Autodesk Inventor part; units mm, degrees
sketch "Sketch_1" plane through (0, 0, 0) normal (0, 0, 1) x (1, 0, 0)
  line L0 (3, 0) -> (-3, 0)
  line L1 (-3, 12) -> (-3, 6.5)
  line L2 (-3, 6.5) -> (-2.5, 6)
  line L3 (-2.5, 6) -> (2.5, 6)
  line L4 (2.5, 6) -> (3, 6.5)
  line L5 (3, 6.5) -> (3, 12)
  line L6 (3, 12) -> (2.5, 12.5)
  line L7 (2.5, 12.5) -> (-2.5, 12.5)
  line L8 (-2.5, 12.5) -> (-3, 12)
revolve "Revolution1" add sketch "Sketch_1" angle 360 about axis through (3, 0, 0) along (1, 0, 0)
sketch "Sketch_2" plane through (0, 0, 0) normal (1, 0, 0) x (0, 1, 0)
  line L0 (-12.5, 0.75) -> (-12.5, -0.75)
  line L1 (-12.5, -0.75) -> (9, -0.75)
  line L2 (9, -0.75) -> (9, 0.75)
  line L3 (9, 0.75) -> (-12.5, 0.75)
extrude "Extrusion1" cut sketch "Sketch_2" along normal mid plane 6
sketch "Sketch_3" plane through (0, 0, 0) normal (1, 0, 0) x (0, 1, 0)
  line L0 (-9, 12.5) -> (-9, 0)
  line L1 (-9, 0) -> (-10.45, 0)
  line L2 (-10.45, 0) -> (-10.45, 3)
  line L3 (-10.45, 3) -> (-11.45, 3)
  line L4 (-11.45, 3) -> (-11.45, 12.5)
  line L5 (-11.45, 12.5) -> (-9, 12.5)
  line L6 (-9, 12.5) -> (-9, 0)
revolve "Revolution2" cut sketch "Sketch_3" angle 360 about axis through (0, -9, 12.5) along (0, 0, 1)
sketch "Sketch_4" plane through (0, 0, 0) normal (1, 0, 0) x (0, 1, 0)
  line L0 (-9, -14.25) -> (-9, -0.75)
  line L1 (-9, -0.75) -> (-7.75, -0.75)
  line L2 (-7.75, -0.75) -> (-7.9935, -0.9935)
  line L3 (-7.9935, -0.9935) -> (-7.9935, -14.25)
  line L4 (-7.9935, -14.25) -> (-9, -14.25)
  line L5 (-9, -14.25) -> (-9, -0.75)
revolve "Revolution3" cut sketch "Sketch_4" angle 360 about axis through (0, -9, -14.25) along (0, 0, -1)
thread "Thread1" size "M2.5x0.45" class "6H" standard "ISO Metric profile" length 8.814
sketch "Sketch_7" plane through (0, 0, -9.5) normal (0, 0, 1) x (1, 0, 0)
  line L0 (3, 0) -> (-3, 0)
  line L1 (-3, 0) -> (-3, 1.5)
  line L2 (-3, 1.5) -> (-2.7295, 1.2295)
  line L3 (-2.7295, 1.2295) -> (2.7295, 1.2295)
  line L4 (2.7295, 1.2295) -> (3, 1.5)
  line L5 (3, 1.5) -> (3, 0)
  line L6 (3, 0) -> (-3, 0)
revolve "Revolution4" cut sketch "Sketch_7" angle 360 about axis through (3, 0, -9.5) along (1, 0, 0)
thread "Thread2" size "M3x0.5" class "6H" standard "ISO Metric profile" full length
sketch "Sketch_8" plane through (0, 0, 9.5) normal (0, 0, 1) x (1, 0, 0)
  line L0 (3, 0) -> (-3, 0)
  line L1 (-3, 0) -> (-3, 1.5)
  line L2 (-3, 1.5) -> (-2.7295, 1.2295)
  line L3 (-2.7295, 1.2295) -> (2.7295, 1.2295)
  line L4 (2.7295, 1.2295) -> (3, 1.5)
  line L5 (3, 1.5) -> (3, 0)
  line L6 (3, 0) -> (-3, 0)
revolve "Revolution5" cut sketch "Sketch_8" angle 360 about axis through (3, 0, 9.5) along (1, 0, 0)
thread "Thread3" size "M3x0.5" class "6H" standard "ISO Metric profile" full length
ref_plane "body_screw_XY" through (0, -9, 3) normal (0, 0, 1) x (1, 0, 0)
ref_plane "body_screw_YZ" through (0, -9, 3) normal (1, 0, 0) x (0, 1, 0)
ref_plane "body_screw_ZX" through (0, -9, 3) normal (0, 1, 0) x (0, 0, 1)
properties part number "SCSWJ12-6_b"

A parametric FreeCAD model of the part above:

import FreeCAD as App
import Part
import Sketcher

V = App.Vector
Q = App.Units.Quantity

doc = App.newDocument("Part")
body = doc.addObject("PartDesign::Body", "Body")

sketch1 = body.newObject("Sketcher::SketchObject", "Sketch")
sketch1.AttachmentSupport = (doc.getObject("XY_Plane"), [""])
sketch1.MapMode = "FlatFace"
sketch1.addGeometry(Part.LineSegment(V(-2.5, 12.5, 0), V(-3, 12, 0)), False)
sketch1.addGeometry(Part.LineSegment(V(-3, 12, 0), V(-3, 6.5, 0)), False)
sketch1.addGeometry(Part.LineSegment(V(-3, 6.5, 0), V(-2.5, 6, 0)), False)
sketch1.addGeometry(Part.LineSegment(V(-2.5, 6, 0), V(2.5, 6, 0)), False)
sketch1.addGeometry(Part.LineSegment(V(2.5, 6, 0), V(3, 6.5, 0)), False)
sketch1.addGeometry(Part.LineSegment(V(3, 6.5, 0), V(3, 12, 0)), False)
sketch1.addGeometry(Part.LineSegment(V(3, 12, 0), V(2.5, 12.5, 0)), False)
sketch1.addGeometry(Part.LineSegment(V(2.5, 12.5, 0), V(-2.5, 12.5, 0)), False)
sketch1.addConstraint(Sketcher.Constraint("Coincident", 0, 2, 1, 1))
sketch1.addConstraint(Sketcher.Constraint("Coincident", 1, 2, 2, 1))
sketch1.addConstraint(Sketcher.Constraint("Coincident", 2, 2, 3, 1))
sketch1.addConstraint(Sketcher.Constraint("Coincident", 3, 2, 4, 1))
sketch1.addConstraint(Sketcher.Constraint("Coincident", 4, 2, 5, 1))
sketch1.addConstraint(Sketcher.Constraint("Coincident", 5, 2, 6, 1))
sketch1.addConstraint(Sketcher.Constraint("Coincident", 6, 2, 7, 1))
sketch1.addConstraint(Sketcher.Constraint("Coincident", 7, 2, 0, 1))
sketch1.addConstraint(Sketcher.Constraint("Vertical", 1))
sketch1.addConstraint(Sketcher.Constraint("Horizontal", 3))
sketch1.addConstraint(Sketcher.Constraint("Vertical", 5))
sketch1.addConstraint(Sketcher.Constraint("Horizontal", 7))
sketch1.addConstraint(Sketcher.Constraint("Symmetric", 1, 2, 4, 2, -2))
sketch1.addConstraint(Sketcher.Constraint("Perpendicular", 0, 2))
sketch1.addConstraint(Sketcher.Constraint("Perpendicular", 2, 4))
sketch1.addConstraint(Sketcher.Constraint("Perpendicular", 4, 6))
sketch1.addConstraint(Sketcher.Constraint("Horizontal", 0, 2, 5, 2))
sketch1.addConstraint(Sketcher.Constraint("Vertical", 3, 2, 6, 2))
sketch1.addConstraint(Sketcher.Constraint("Vertical", 2, 2, 7, 2))
sketch1.addConstraint(Sketcher.Constraint("DistanceX", 3, 1, 3, 2, Q("5 mm")))
sketch1.addConstraint(Sketcher.Constraint("DistanceY", 1, 2, 1, 1, Q("5.5 mm")))
sketch1.addConstraint(Sketcher.Constraint("DistanceX", 0, 2, -1, 1, Q("3 mm")))
sketch1.addConstraint(Sketcher.Constraint("DistanceY", -1, 1, 0, 2, Q("12 mm")))
revolution = body.newObject("PartDesign::Revolution", "Revolution")
revolution.Profile = sketch1
revolution.ReferenceAxis = (sketch1, ["H_Axis"])
revolution.Angle = 360

sketch2 = body.newObject("Sketcher::SketchObject", "Sketch001")
sketch2.AttachmentSupport = (doc.getObject("YZ_Plane"), [""])
sketch2.MapMode = "FlatFace"
sketch2.addGeometry(Part.LineSegment(V(9, 0.8, 0), V(-12.5, 0.8, 0)), False)
sketch2.addGeometry(Part.LineSegment(V(-12.5, 0.8, 0), V(-12.5, -0.8, 0)), False)
sketch2.addGeometry(Part.LineSegment(V(-12.5, -0.8, 0), V(9, -0.8, 0)), False)
sketch2.addGeometry(Part.LineSegment(V(9, -0.8, 0), V(9, 0.8, 0)), False)
sketch2.addConstraint(Sketcher.Constraint("Coincident", 0, 2, 1, 1))
sketch2.addConstraint(Sketcher.Constraint("Coincident", 1, 2, 2, 1))
sketch2.addConstraint(Sketcher.Constraint("Coincident", 2, 2, 3, 1))
sketch2.addConstraint(Sketcher.Constraint("Coincident", 3, 2, 0, 1))
sketch2.addConstraint(Sketcher.Constraint("Horizontal", 0))
sketch2.addConstraint(Sketcher.Constraint("Vertical", 1))
sketch2.addConstraint(Sketcher.Constraint("Horizontal", 2))
sketch2.addConstraint(Sketcher.Constraint("Vertical", 3))
sketch2.addConstraint(Sketcher.Constraint("DistanceX", 0, 2, 0, 1, Q("21.5 mm")))
sketch2.addConstraint(Sketcher.Constraint("DistanceY", 1, 2, 1, 1, Q("1.5 mm")))
sketch2.addConstraint(Sketcher.Constraint("DistanceX", -1, 1, 2, 2, Q("9 mm")))
sketch2.addConstraint(Sketcher.Constraint("DistanceY", -1, 1, 0, 2, Q("0.75 mm")))
pocket1 = body.newObject("PartDesign::Pocket", "Pocket")
pocket1.Profile = sketch2
pocket1.Length = 6
pocket1.Midplane = True

sketch3 = body.newObject("Sketcher::SketchObject", "Sketch002")
sketch3.AttachmentSupport = (doc.getObject("YZ_Plane"), [""])
sketch3.MapMode = "FlatFace"
sketch3.addGeometry(Part.LineSegment(V(-9, 0, 0), V(-9, 12.5, 0)), False)
sketch3.addGeometry(Part.LineSegment(V(-9, 12.5, 0), V(-11.4, 12.5, 0)), False)
sketch3.addGeometry(Part.LineSegment(V(-11.4, 12.5, 0), V(-11.4, 3, 0)), False)
sketch3.addGeometry(Part.LineSegment(V(-11.4, 3, 0), V(-10.4, 3, 0)), False)
sketch3.addGeometry(Part.LineSegment(V(-10.4, 3, 0), V(-10.4, 0, 0)), False)
sketch3.addGeometry(Part.LineSegment(V(-10.4, 0, 0), V(-9, 0, 0)), False)
sketch3.addGeometry(Part.LineSegment(V(-9, 0, 0), V(-9, 12.5, 0)), True)
sketch3.addConstraint(Sketcher.Constraint("Coincident", 0, 2, 1, 1))
sketch3.addConstraint(Sketcher.Constraint("Coincident", 1, 2, 2, 1))
sketch3.addConstraint(Sketcher.Constraint("Coincident", 2, 2, 3, 1))
sketch3.addConstraint(Sketcher.Constraint("Coincident", 3, 2, 4, 1))
sketch3.addConstraint(Sketcher.Constraint("Coincident", 4, 2, 5, 1))
sketch3.addConstraint(Sketcher.Constraint("Coincident", 5, 2, 0, 1))
sketch3.addConstraint(Sketcher.Constraint("Vertical", 0))
sketch3.addConstraint(Sketcher.Constraint("Horizontal", 1))
sketch3.addConstraint(Sketcher.Constraint("Vertical", 2))
sketch3.addConstraint(Sketcher.Constraint("Horizontal", 3))
sketch3.addConstraint(Sketcher.Constraint("Vertical", 4))
sketch3.addConstraint(Sketcher.Constraint("Horizontal", 5))
sketch3.addConstraint(Sketcher.Constraint("Vertical", 6))
sketch3.addConstraint(Sketcher.Constraint("Coincident", 6, 1, 5, 2))
sketch3.addConstraint(Sketcher.Constraint("PointOnObject", 4, 2, -1))
sketch3.addConstraint(Sketcher.Constraint("Horizontal", 1, 2, 6, 2))
sketch3.addConstraint(Sketcher.Constraint("DistanceX", 3, 1, 3, 2, Q("1 mm")))
sketch3.addConstraint(Sketcher.Constraint("DistanceY", 4, 2, 4, 1, Q("3 mm")))
sketch3.addConstraint(Sketcher.Constraint("DistanceY", 0, 1, 0, 2, Q("12.5 mm")))
sketch3.addConstraint(Sketcher.Constraint("DistanceX", 0, 2, -1, 1, Q("9 mm")))
sketch3.addConstraint(Sketcher.Constraint("DistanceX", 1, 2, 1, 1, Q("2.45 mm")))
groove = body.newObject("PartDesign::Groove", "Groove")
groove.Profile = sketch3
groove.ReferenceAxis = (sketch3, ["Axis0"])
groove.Angle = 360

sketch4 = body.newObject("Sketcher::SketchObject", "Sketch003")
sketch4.AttachmentSupport = (doc.getObject("YZ_Plane"), [""])
sketch4.MapMode = "FlatFace"
sketch4.addGeometry(Part.LineSegment(V(-9, -0.75, 0), V(-9, -14.25, 0)), False)
sketch4.addGeometry(Part.LineSegment(V(-9, -14.25, 0), V(-7.99, -14.25, 0)), False)
sketch4.addGeometry(Part.LineSegment(V(-7.99, -14.25, 0), V(-7.99, -0.99, 0)), False)
sketch4.addGeometry(Part.LineSegment(V(-7.99, -0.99, 0), V(-7.75, -0.75, 0)), False)
sketch4.addGeometry(Part.LineSegment(V(-7.75, -0.75, 0), V(-9, -0.75, 0)), False)
sketch4.addGeometry(Part.LineSegment(V(-9, -0.75, 0), V(-9, -14.25, 0)), True)
sketch4.addConstraint(Sketcher.Constraint("Coincident", 0, 2, 1, 1))
sketch4.addConstraint(Sketcher.Constraint("Coincident", 1, 2, 2, 1))
sketch4.addConstraint(Sketcher.Constraint("Coincident", 2, 2, 3, 1))
sketch4.addConstraint(Sketcher.Constraint("Coincident", 3, 2, 4, 1))
sketch4.addConstraint(Sketcher.Constraint("Coincident", 4, 2, 0, 1))
sketch4.addConstraint(Sketcher.Constraint("Vertical", 0))
sketch4.addConstraint(Sketcher.Constraint("Horizontal", 1))
sketch4.addConstraint(Sketcher.Constraint("Vertical", 2))
sketch4.addConstraint(Sketcher.Constraint("Horizontal", 4))
sketch4.addConstraint(Sketcher.Constraint("Vertical", 5))
sketch4.addConstraint(Sketcher.Constraint("Coincident", 5, 1, 4, 2))
sketch4.addConstraint(Sketcher.Constraint("Horizontal", 1, 2, 5, 2))
sketch4.addConstraint(Sketcher.Constraint("Angle", 3, Q("45 deg")))
sketch4.addConstraint(Sketcher.Constraint("DistanceY", 0, 2, 0, 1, Q("13.5 mm")))
sketch4.addConstraint(Sketcher.Constraint("DistanceX", 0, 2, -1, 1, Q("9 mm")))
sketch4.addConstraint(Sketcher.Constraint("DistanceX", 4, 2, 4, 1, Q("1.25 mm")))
sketch4.addConstraint(Sketcher.Constraint("DistanceY", 0, 2, -1, 1, Q("14.25 mm")))
sketch4.addConstraint(Sketcher.Constraint("DistanceX", 1, 1, 1, 2, Q("1.0065 mm")))
groove2 = body.newObject("PartDesign::Groove", "Groove001")
groove2.Profile = sketch4
groove2.ReferenceAxis = (sketch4, ["Axis0"])
groove2.Angle = 360

sketch5 = body.newObject("Sketcher::SketchObject", "Sketch004")
sketch5.AttachmentSupport = (doc.getObject("XY_Plane"), [""])
sketch5.MapMode = "FlatFace"
sketch5.AttachmentOffset = App.Placement(V(0, 0, -9.5), App.Rotation())
sketch5.addGeometry(Part.LineSegment(V(-3, 0, 0), V(3, 0, 0)), False)
sketch5.addGeometry(Part.LineSegment(V(3, 0, 0), V(3, 1.5, 0)), False)
sketch5.addGeometry(Part.LineSegment(V(3, 1.5, 0), V(2.73, 1.23, 0)), False)
sketch5.addGeometry(Part.LineSegment(V(2.73, 1.23, 0), V(-2.73, 1.23, 0)), False)
sketch5.addGeometry(Part.LineSegment(V(-2.73, 1.23, 0), V(-3, 1.5, 0)), False)
sketch5.addGeometry(Part.LineSegment(V(-3, 1.5, 0), V(-3, 0, 0)), False)
sketch5.addConstraint(Sketcher.Constraint("Coincident", 0, 2, 1, 1))
sketch5.addConstraint(Sketcher.Constraint("Coincident", 1, 2, 2, 1))
sketch5.addConstraint(Sketcher.Constraint("Coincident", 2, 2, 3, 1))
sketch5.addConstraint(Sketcher.Constraint("Coincident", 3, 2, 4, 1))
sketch5.addConstraint(Sketcher.Constraint("Coincident", 4, 2, 5, 1))
sketch5.addConstraint(Sketcher.Constraint("Coincident", 5, 2, 0, 1))
sketch5.addConstraint(Sketcher.Constraint("Horizontal", 0))
sketch5.addConstraint(Sketcher.Constraint("Vertical", 1))
sketch5.addConstraint(Sketcher.Constraint("Horizontal", 3))
sketch5.addConstraint(Sketcher.Constraint("Vertical", 5))
sketch5.addConstraint(Sketcher.Constraint("Symmetric", 0, 2, 5, 2, -1, 1))
sketch5.addConstraint(Sketcher.Constraint("Perpendicular", 2, 4))
sketch5.addConstraint(Sketcher.Constraint("Horizontal", 1, 2, 4, 2))
sketch5.addConstraint(Sketcher.Constraint("Equal", 2, 4))
sketch5.addConstraint(Sketcher.Constraint("DistanceX", 0, 1, 0, 2, Q("6 mm")))
sketch5.addConstraint(Sketcher.Constraint("DistanceY", 1, 1, 1, 2, Q("1.5 mm")))
sketch5.addConstraint(Sketcher.Constraint("DistanceX", 3, 2, 3, 1, Q("5.459 mm")))
groove3 = body.newObject("PartDesign::Groove", "Groove002")
groove3.Profile = sketch5
groove3.ReferenceAxis = (sketch5, ["H_Axis"])
groove3.Angle = 360

sketch6 = body.newObject("Sketcher::SketchObject", "Sketch005")
sketch6.AttachmentSupport = (doc.getObject("XY_Plane"), [""])
sketch6.MapMode = "FlatFace"
sketch6.AttachmentOffset = App.Placement(V(0, 0, 9.5), App.Rotation())
sketch6.addGeometry(Part.LineSegment(V(-3, 0, 0), V(3, 0, 0)), False)
sketch6.addGeometry(Part.LineSegment(V(3, 0, 0), V(3, 1.5, 0)), False)
sketch6.addGeometry(Part.LineSegment(V(3, 1.5, 0), V(2.73, 1.23, 0)), False)
sketch6.addGeometry(Part.LineSegment(V(2.73, 1.23, 0), V(-2.73, 1.23, 0)), False)
sketch6.addGeometry(Part.LineSegment(V(-2.73, 1.23, 0), V(-3, 1.5, 0)), False)
sketch6.addGeometry(Part.LineSegment(V(-3, 1.5, 0), V(-3, 0, 0)), False)
sketch6.addConstraint(Sketcher.Constraint("Coincident", 0, 2, 1, 1))
sketch6.addConstraint(Sketcher.Constraint("Coincident", 1, 2, 2, 1))
sketch6.addConstraint(Sketcher.Constraint("Coincident", 2, 2, 3, 1))
sketch6.addConstraint(Sketcher.Constraint("Coincident", 3, 2, 4, 1))
sketch6.addConstraint(Sketcher.Constraint("Coincident", 4, 2, 5, 1))
sketch6.addConstraint(Sketcher.Constraint("Coincident", 5, 2, 0, 1))
sketch6.addConstraint(Sketcher.Constraint("Horizontal", 0))
sketch6.addConstraint(Sketcher.Constraint("Vertical", 1))
sketch6.addConstraint(Sketcher.Constraint("Horizontal", 3))
sketch6.addConstraint(Sketcher.Constraint("Vertical", 5))
sketch6.addConstraint(Sketcher.Constraint("Symmetric", 0, 2, 5, 2, -1, 1))
sketch6.addConstraint(Sketcher.Constraint("Perpendicular", 2, 4))
sketch6.addConstraint(Sketcher.Constraint("Horizontal", 1, 2, 4, 2))
sketch6.addConstraint(Sketcher.Constraint("Equal", 2, 4))
sketch6.addConstraint(Sketcher.Constraint("DistanceX", 0, 1, 0, 2, Q("6 mm")))
sketch6.addConstraint(Sketcher.Constraint("DistanceY", 1, 1, 1, 2, Q("1.5 mm")))
sketch6.addConstraint(Sketcher.Constraint("DistanceX", 3, 2, 3, 1, Q("5.459 mm")))
groove4 = body.newObject("PartDesign::Groove", "Groove003")
groove4.Profile = sketch6
groove4.ReferenceAxis = (sketch6, ["H_Axis"])
groove4.Angle = 360

doc.recompute()
